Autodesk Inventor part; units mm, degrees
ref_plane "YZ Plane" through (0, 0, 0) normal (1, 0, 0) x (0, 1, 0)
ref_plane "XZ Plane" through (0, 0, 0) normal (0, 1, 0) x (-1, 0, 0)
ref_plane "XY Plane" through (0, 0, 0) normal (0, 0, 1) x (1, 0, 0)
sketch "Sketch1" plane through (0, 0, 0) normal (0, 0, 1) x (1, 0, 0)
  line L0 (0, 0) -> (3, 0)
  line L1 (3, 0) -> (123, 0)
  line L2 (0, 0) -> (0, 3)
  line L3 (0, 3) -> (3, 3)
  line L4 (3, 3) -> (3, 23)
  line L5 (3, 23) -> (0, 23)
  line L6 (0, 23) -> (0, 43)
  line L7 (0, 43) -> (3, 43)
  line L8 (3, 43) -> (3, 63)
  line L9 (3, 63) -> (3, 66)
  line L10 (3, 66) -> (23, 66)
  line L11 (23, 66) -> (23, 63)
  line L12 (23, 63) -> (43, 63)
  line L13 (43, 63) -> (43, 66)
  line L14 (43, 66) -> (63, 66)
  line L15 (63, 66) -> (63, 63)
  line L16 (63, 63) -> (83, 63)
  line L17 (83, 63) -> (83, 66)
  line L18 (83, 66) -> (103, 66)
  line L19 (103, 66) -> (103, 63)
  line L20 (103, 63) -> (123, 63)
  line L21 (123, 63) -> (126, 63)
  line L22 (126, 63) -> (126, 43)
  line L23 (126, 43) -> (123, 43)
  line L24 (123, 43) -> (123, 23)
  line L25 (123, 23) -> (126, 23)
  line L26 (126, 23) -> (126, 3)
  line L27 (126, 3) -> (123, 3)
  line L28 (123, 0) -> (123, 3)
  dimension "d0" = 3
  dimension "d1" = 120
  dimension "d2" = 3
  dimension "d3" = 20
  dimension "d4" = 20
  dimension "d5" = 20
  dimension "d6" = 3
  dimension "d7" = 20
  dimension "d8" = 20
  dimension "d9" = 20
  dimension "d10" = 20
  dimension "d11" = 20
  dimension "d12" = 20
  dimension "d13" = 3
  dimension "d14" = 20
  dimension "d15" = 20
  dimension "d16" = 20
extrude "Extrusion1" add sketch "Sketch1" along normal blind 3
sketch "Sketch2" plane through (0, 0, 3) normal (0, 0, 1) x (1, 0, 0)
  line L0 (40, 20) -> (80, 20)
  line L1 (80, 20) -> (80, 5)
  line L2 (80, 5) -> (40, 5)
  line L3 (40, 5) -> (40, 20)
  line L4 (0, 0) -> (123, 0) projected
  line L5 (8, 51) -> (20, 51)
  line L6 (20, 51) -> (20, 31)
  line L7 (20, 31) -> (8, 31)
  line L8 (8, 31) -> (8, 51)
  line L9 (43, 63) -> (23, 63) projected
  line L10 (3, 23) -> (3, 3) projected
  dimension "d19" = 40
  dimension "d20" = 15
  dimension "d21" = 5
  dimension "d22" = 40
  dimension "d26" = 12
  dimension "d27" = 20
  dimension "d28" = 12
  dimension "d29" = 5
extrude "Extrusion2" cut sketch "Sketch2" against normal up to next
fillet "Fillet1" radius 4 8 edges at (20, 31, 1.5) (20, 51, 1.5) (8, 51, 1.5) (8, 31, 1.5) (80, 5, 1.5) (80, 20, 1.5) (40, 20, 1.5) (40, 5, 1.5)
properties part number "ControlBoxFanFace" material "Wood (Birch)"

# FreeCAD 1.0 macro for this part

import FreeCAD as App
import Part
import Sketcher
from FreeCAD import Vector
Q = App.Units.Quantity


def edges_at(feature, points):
    """Names of the edges that pass closest to the given points."""
    edges = feature.Shape.Edges
    near = lambda p: min(range(len(edges)), key=lambda i: edges[i].distToShape(Part.Vertex(*p))[0])
    return sorted({f"Edge{near(p) + 1}" for p in points})

doc = App.newDocument("Part")
params = doc.addObject("Spreadsheet::Sheet", "Params")
for row, (alias, value) in enumerate([
    ("sketch1_width", "3 mm"),
    ("sketch1_width2", "20 mm"),
    ("pad1_length", "3 mm"),
    ("sketch2_width", "40 mm"),
    ("sketch2_width2", "12 mm"),
    ("sketch2_height", "15 mm"),
    ("sketch2_height2", "20 mm"),
    ("fillet_radius", "4 mm"),
], start=1):
    params.set(f"A{row}", alias)
    params.set(f"B{row}", "=" + value)
    params.setAlias(f"B{row}", alias)

body = doc.addObject("PartDesign::Body", "Body")

sketch1 = doc.addObject("Sketcher::SketchObject", "Sketch")
body.addObject(sketch1)
sketch1.AttachmentSupport = (doc.XY_Plane, [""])
sketch1.MapMode = "FlatFace"
sketch1.addGeometry([
    Part.LineSegment(Vector(0, 3, 0), Vector(0, 0, 0)),
    Part.LineSegment(Vector(0, 0, 0), Vector(123, 0, 0)),
    Part.LineSegment(Vector(123, 0, 0), Vector(123, 3, 0)),
    Part.LineSegment(Vector(123, 3, 0), Vector(126, 3, 0)),
    Part.LineSegment(Vector(126, 3, 0), Vector(126, 23, 0)),
    Part.LineSegment(Vector(126, 23, 0), Vector(123, 23, 0)),
    Part.LineSegment(Vector(123, 23, 0), Vector(123, 43, 0)),
    Part.LineSegment(Vector(123, 43, 0), Vector(126, 43, 0)),
    Part.LineSegment(Vector(126, 43, 0), Vector(126, 63, 0)),
    Part.LineSegment(Vector(126, 63, 0), Vector(103, 63, 0)),
    Part.LineSegment(Vector(103, 63, 0), Vector(103, 66, 0)),
    Part.LineSegment(Vector(103, 66, 0), Vector(83, 66, 0)),
    Part.LineSegment(Vector(83, 66, 0), Vector(83, 63, 0)),
    Part.LineSegment(Vector(83, 63, 0), Vector(63, 63, 0)),
    Part.LineSegment(Vector(63, 63, 0), Vector(63, 66, 0)),
    Part.LineSegment(Vector(63, 66, 0), Vector(43, 66, 0)),
    Part.LineSegment(Vector(43, 66, 0), Vector(43, 63, 0)),
    Part.LineSegment(Vector(43, 63, 0), Vector(23, 63, 0)),
    Part.LineSegment(Vector(23, 63, 0), Vector(23, 66, 0)),
    Part.LineSegment(Vector(23, 66, 0), Vector(3, 66, 0)),
    Part.LineSegment(Vector(3, 66, 0), Vector(3, 43, 0)),
    Part.LineSegment(Vector(3, 43, 0), Vector(0, 43, 0)),
    Part.LineSegment(Vector(0, 43, 0), Vector(0, 23, 0)),
    Part.LineSegment(Vector(0, 23, 0), Vector(3, 23, 0)),
    Part.LineSegment(Vector(3, 23, 0), Vector(3, 3, 0)),
    Part.LineSegment(Vector(3, 3, 0), Vector(0, 3, 0)),
], False)
sketch1.addConstraint([
    Sketcher.Constraint("Coincident", 0, 2, 1, 1),
    Sketcher.Constraint("Coincident", 1, 2, 2, 1),
    Sketcher.Constraint("Coincident", 2, 2, 3, 1),
    Sketcher.Constraint("Coincident", 3, 2, 4, 1),
    Sketcher.Constraint("Coincident", 4, 2, 5, 1),
    Sketcher.Constraint("Coincident", 5, 2, 6, 1),
    Sketcher.Constraint("Coincident", 6, 2, 7, 1),
    Sketcher.Constraint("Coincident", 7, 2, 8, 1),
    Sketcher.Constraint("Coincident", 8, 2, 9, 1),
    Sketcher.Constraint("Coincident", 9, 2, 10, 1),
    Sketcher.Constraint("Coincident", 10, 2, 11, 1),
    Sketcher.Constraint("Coincident", 11, 2, 12, 1),
    Sketcher.Constraint("Coincident", 12, 2, 13, 1),
    Sketcher.Constraint("Coincident", 13, 2, 14, 1),
    Sketcher.Constraint("Coincident", 14, 2, 15, 1),
    Sketcher.Constraint("Coincident", 15, 2, 16, 1),
    Sketcher.Constraint("Coincident", 16, 2, 17, 1),
    Sketcher.Constraint("Coincident", 17, 2, 18, 1),
    Sketcher.Constraint("Coincident", 18, 2, 19, 1),
    Sketcher.Constraint("Coincident", 19, 2, 20, 1),
    Sketcher.Constraint("Coincident", 20, 2, 21, 1),
    Sketcher.Constraint("Coincident", 21, 2, 22, 1),
    Sketcher.Constraint("Coincident", 22, 2, 23, 1),
    Sketcher.Constraint("Coincident", 23, 2, 24, 1),
    Sketcher.Constraint("Coincident", 24, 2, 25, 1),
    Sketcher.Constraint("Coincident", 25, 2, 0, 1),
    Sketcher.Constraint("Vertical", 0),
    Sketcher.Constraint("Horizontal", 1),
    Sketcher.Constraint("Vertical", 2),
    Sketcher.Constraint("Horizontal", 3),
    Sketcher.Constraint("Vertical", 4),
    Sketcher.Constraint("Horizontal", 5),
    Sketcher.Constraint("Vertical", 6),
    Sketcher.Constraint("Horizontal", 7),
    Sketcher.Constraint("Vertical", 8),
    Sketcher.Constraint("Horizontal", 9),
    Sketcher.Constraint("Vertical", 10),
    Sketcher.Constraint("Horizontal", 11),
    Sketcher.Constraint("Vertical", 12),
    Sketcher.Constraint("Horizontal", 13),
    Sketcher.Constraint("Vertical", 14),
    Sketcher.Constraint("Horizontal", 15),
    Sketcher.Constraint("Vertical", 16),
    Sketcher.Constraint("Horizontal", 17),
    Sketcher.Constraint("Vertical", 18),
    Sketcher.Constraint("Horizontal", 19),
    Sketcher.Constraint("Vertical", 20),
    Sketcher.Constraint("Horizontal", 21),
    Sketcher.Constraint("Vertical", 22),
    Sketcher.Constraint("Horizontal", 23),
    Sketcher.Constraint("Vertical", 24),
    Sketcher.Constraint("Horizontal", 25),
    Sketcher.Constraint("Coincident", 0, 2, -1, 1),
    Sketcher.Constraint("PointOnObject", 21, 2, -2),
    Sketcher.Constraint("Horizontal", 9, 2, 12, 2),
    Sketcher.Constraint("Horizontal", 11, 2, 14, 2),
    Sketcher.Constraint("Horizontal", 13, 2, 16, 2),
    Sketcher.Constraint("Horizontal", 15, 2, 18, 2),
    Sketcher.Constraint("Horizontal", 7, 2, 20, 2),
    Sketcher.Constraint("Horizontal", 5, 2, 22, 2),
    Sketcher.Constraint("Horizontal", 3, 2, 24, 2),
    Sketcher.Constraint("Vertical", 2, 2, 5, 2),
    Sketcher.Constraint("Vertical", 4, 2, 7, 2),
    Sketcher.Constraint("Vertical", 20, 2, 23, 2),
    Sketcher.Constraint("Equal", 11, 13),
    Sketcher.Constraint("Equal", 13, 15),
    Sketcher.Constraint("Equal", 15, 17),
    Sketcher.Constraint("Equal", 17, 19),
    Sketcher.Constraint("Equal", 7, 21),
    Sketcher.Constraint("Equal", 25, 0),
    Sketcher.Constraint("Equal", 19, 4),
    Sketcher.Constraint("Equal", 4, 6),
    Sketcher.Constraint("Equal", 6, 8),
    Sketcher.Constraint("Equal", 2, 10),
    Sketcher.Constraint("Equal", 9, 20),
    Sketcher.Constraint("DistanceX", 3, 1, 3, 2, Q("3 mm")),
    Sketcher.Constraint("DistanceX", 11, 2, 11, 1, Q("20 mm")),
])
sketch1.setExpression("Constraints[75]", "Params.sketch1_width")
sketch1.setExpression("Constraints[76]", "Params.sketch1_width2")
pad1 = doc.addObject("PartDesign::Pad", "Pad")
body.addObject(pad1)
pad1.Profile = sketch1
pad1.setExpression("Length", "Params.pad1_length")

sketch2 = doc.addObject("Sketcher::SketchObject", "Sketch001")
body.addObject(sketch2)
sketch2.AttachmentSupport = (doc.XY_Plane, [""])
sketch2.MapMode = "FlatFace"
sketch2.AttachmentOffset = App.Placement(Vector(0, 0, 3), App.Rotation())
sketch2.addGeometry([
    Part.LineSegment(Vector(80, 20, 0), Vector(40, 20, 0)),
    Part.LineSegment(Vector(40, 20, 0), Vector(40, 5, 0)),
    Part.LineSegment(Vector(40, 5, 0), Vector(80, 5, 0)),
    Part.LineSegment(Vector(80, 5, 0), Vector(80, 20, 0)),
    Part.LineSegment(Vector(20, 51, 0), Vector(8, 51, 0)),
    Part.LineSegment(Vector(8, 51, 0), Vector(8, 31, 0)),
    Part.LineSegment(Vector(8, 31, 0), Vector(20, 31, 0)),
    Part.LineSegment(Vector(20, 31, 0), Vector(20, 51, 0)),
], False)
sketch2.addConstraint([
    Sketcher.Constraint("Coincident", 0, 2, 1, 1),
    Sketcher.Constraint("Coincident", 1, 2, 2, 1),
    Sketcher.Constraint("Coincident", 2, 2, 3, 1),
    Sketcher.Constraint("Coincident", 3, 2, 0, 1),
    Sketcher.Constraint("Coincident", 4, 2, 5, 1),
    Sketcher.Constraint("Coincident", 5, 2, 6, 1),
    Sketcher.Constraint("Coincident", 6, 2, 7, 1),
    Sketcher.Constraint("Coincident", 7, 2, 4, 1),
    Sketcher.Constraint("Horizontal", 0),
    Sketcher.Constraint("Vertical", 1),
    Sketcher.Constraint("Horizontal", 2),
    Sketcher.Constraint("Vertical", 3),
    Sketcher.Constraint("Horizontal", 4),
    Sketcher.Constraint("Vertical", 5),
    Sketcher.Constraint("Horizontal", 6),
    Sketcher.Constraint("Vertical", 7),
    Sketcher.Constraint("DistanceX", 0, 2, 0, 1, Q("40 mm")),
    Sketcher.Constraint("DistanceX", 4, 2, 4, 1, Q("12 mm")),
    Sketcher.Constraint("DistanceY", 1, 2, 1, 1, Q("15 mm")),
    Sketcher.Constraint("DistanceY", 5, 2, 5, 1, Q("20 mm")),
    Sketcher.Constraint("DistanceX", -1, 1, 0, 2, Q("40 mm")),
    Sketcher.Constraint("DistanceY", -1, 1, 0, 2, Q("20 mm")),
    Sketcher.Constraint("DistanceX", -1, 1, 6, 2, Q("20 mm")),
    Sketcher.Constraint("DistanceY", -1, 1, 4, 2, Q("51 mm")),
])
sketch2.setExpression("Constraints[16]", "Params.sketch2_width")
sketch2.setExpression("Constraints[17]", "Params.sketch2_width2")
sketch2.setExpression("Constraints[18]", "Params.sketch2_height")
sketch2.setExpression("Constraints[19]", "Params.sketch2_height2")
pocket1 = doc.addObject("PartDesign::Pocket", "Pocket")
body.addObject(pocket1)
pocket1.Profile = sketch2
pocket1.Type = "UpToFirst"
doc.recompute()

fillet = doc.addObject("PartDesign::Fillet", "Fillet")
body.addObject(fillet)
fillet.Base = (pocket1, edges_at(pocket1, [
    (20, 31, 1.5),
    (20, 51, 1.5),
    (8, 51, 1.5),
    (8, 31, 1.5),
    (80, 5, 1.5),
    (80, 20, 1.5),
    (40, 20, 1.5),
    (40, 5, 1.5),
]))
fillet.setExpression("Radius", "Params.fillet_radius")

doc.recompute()
